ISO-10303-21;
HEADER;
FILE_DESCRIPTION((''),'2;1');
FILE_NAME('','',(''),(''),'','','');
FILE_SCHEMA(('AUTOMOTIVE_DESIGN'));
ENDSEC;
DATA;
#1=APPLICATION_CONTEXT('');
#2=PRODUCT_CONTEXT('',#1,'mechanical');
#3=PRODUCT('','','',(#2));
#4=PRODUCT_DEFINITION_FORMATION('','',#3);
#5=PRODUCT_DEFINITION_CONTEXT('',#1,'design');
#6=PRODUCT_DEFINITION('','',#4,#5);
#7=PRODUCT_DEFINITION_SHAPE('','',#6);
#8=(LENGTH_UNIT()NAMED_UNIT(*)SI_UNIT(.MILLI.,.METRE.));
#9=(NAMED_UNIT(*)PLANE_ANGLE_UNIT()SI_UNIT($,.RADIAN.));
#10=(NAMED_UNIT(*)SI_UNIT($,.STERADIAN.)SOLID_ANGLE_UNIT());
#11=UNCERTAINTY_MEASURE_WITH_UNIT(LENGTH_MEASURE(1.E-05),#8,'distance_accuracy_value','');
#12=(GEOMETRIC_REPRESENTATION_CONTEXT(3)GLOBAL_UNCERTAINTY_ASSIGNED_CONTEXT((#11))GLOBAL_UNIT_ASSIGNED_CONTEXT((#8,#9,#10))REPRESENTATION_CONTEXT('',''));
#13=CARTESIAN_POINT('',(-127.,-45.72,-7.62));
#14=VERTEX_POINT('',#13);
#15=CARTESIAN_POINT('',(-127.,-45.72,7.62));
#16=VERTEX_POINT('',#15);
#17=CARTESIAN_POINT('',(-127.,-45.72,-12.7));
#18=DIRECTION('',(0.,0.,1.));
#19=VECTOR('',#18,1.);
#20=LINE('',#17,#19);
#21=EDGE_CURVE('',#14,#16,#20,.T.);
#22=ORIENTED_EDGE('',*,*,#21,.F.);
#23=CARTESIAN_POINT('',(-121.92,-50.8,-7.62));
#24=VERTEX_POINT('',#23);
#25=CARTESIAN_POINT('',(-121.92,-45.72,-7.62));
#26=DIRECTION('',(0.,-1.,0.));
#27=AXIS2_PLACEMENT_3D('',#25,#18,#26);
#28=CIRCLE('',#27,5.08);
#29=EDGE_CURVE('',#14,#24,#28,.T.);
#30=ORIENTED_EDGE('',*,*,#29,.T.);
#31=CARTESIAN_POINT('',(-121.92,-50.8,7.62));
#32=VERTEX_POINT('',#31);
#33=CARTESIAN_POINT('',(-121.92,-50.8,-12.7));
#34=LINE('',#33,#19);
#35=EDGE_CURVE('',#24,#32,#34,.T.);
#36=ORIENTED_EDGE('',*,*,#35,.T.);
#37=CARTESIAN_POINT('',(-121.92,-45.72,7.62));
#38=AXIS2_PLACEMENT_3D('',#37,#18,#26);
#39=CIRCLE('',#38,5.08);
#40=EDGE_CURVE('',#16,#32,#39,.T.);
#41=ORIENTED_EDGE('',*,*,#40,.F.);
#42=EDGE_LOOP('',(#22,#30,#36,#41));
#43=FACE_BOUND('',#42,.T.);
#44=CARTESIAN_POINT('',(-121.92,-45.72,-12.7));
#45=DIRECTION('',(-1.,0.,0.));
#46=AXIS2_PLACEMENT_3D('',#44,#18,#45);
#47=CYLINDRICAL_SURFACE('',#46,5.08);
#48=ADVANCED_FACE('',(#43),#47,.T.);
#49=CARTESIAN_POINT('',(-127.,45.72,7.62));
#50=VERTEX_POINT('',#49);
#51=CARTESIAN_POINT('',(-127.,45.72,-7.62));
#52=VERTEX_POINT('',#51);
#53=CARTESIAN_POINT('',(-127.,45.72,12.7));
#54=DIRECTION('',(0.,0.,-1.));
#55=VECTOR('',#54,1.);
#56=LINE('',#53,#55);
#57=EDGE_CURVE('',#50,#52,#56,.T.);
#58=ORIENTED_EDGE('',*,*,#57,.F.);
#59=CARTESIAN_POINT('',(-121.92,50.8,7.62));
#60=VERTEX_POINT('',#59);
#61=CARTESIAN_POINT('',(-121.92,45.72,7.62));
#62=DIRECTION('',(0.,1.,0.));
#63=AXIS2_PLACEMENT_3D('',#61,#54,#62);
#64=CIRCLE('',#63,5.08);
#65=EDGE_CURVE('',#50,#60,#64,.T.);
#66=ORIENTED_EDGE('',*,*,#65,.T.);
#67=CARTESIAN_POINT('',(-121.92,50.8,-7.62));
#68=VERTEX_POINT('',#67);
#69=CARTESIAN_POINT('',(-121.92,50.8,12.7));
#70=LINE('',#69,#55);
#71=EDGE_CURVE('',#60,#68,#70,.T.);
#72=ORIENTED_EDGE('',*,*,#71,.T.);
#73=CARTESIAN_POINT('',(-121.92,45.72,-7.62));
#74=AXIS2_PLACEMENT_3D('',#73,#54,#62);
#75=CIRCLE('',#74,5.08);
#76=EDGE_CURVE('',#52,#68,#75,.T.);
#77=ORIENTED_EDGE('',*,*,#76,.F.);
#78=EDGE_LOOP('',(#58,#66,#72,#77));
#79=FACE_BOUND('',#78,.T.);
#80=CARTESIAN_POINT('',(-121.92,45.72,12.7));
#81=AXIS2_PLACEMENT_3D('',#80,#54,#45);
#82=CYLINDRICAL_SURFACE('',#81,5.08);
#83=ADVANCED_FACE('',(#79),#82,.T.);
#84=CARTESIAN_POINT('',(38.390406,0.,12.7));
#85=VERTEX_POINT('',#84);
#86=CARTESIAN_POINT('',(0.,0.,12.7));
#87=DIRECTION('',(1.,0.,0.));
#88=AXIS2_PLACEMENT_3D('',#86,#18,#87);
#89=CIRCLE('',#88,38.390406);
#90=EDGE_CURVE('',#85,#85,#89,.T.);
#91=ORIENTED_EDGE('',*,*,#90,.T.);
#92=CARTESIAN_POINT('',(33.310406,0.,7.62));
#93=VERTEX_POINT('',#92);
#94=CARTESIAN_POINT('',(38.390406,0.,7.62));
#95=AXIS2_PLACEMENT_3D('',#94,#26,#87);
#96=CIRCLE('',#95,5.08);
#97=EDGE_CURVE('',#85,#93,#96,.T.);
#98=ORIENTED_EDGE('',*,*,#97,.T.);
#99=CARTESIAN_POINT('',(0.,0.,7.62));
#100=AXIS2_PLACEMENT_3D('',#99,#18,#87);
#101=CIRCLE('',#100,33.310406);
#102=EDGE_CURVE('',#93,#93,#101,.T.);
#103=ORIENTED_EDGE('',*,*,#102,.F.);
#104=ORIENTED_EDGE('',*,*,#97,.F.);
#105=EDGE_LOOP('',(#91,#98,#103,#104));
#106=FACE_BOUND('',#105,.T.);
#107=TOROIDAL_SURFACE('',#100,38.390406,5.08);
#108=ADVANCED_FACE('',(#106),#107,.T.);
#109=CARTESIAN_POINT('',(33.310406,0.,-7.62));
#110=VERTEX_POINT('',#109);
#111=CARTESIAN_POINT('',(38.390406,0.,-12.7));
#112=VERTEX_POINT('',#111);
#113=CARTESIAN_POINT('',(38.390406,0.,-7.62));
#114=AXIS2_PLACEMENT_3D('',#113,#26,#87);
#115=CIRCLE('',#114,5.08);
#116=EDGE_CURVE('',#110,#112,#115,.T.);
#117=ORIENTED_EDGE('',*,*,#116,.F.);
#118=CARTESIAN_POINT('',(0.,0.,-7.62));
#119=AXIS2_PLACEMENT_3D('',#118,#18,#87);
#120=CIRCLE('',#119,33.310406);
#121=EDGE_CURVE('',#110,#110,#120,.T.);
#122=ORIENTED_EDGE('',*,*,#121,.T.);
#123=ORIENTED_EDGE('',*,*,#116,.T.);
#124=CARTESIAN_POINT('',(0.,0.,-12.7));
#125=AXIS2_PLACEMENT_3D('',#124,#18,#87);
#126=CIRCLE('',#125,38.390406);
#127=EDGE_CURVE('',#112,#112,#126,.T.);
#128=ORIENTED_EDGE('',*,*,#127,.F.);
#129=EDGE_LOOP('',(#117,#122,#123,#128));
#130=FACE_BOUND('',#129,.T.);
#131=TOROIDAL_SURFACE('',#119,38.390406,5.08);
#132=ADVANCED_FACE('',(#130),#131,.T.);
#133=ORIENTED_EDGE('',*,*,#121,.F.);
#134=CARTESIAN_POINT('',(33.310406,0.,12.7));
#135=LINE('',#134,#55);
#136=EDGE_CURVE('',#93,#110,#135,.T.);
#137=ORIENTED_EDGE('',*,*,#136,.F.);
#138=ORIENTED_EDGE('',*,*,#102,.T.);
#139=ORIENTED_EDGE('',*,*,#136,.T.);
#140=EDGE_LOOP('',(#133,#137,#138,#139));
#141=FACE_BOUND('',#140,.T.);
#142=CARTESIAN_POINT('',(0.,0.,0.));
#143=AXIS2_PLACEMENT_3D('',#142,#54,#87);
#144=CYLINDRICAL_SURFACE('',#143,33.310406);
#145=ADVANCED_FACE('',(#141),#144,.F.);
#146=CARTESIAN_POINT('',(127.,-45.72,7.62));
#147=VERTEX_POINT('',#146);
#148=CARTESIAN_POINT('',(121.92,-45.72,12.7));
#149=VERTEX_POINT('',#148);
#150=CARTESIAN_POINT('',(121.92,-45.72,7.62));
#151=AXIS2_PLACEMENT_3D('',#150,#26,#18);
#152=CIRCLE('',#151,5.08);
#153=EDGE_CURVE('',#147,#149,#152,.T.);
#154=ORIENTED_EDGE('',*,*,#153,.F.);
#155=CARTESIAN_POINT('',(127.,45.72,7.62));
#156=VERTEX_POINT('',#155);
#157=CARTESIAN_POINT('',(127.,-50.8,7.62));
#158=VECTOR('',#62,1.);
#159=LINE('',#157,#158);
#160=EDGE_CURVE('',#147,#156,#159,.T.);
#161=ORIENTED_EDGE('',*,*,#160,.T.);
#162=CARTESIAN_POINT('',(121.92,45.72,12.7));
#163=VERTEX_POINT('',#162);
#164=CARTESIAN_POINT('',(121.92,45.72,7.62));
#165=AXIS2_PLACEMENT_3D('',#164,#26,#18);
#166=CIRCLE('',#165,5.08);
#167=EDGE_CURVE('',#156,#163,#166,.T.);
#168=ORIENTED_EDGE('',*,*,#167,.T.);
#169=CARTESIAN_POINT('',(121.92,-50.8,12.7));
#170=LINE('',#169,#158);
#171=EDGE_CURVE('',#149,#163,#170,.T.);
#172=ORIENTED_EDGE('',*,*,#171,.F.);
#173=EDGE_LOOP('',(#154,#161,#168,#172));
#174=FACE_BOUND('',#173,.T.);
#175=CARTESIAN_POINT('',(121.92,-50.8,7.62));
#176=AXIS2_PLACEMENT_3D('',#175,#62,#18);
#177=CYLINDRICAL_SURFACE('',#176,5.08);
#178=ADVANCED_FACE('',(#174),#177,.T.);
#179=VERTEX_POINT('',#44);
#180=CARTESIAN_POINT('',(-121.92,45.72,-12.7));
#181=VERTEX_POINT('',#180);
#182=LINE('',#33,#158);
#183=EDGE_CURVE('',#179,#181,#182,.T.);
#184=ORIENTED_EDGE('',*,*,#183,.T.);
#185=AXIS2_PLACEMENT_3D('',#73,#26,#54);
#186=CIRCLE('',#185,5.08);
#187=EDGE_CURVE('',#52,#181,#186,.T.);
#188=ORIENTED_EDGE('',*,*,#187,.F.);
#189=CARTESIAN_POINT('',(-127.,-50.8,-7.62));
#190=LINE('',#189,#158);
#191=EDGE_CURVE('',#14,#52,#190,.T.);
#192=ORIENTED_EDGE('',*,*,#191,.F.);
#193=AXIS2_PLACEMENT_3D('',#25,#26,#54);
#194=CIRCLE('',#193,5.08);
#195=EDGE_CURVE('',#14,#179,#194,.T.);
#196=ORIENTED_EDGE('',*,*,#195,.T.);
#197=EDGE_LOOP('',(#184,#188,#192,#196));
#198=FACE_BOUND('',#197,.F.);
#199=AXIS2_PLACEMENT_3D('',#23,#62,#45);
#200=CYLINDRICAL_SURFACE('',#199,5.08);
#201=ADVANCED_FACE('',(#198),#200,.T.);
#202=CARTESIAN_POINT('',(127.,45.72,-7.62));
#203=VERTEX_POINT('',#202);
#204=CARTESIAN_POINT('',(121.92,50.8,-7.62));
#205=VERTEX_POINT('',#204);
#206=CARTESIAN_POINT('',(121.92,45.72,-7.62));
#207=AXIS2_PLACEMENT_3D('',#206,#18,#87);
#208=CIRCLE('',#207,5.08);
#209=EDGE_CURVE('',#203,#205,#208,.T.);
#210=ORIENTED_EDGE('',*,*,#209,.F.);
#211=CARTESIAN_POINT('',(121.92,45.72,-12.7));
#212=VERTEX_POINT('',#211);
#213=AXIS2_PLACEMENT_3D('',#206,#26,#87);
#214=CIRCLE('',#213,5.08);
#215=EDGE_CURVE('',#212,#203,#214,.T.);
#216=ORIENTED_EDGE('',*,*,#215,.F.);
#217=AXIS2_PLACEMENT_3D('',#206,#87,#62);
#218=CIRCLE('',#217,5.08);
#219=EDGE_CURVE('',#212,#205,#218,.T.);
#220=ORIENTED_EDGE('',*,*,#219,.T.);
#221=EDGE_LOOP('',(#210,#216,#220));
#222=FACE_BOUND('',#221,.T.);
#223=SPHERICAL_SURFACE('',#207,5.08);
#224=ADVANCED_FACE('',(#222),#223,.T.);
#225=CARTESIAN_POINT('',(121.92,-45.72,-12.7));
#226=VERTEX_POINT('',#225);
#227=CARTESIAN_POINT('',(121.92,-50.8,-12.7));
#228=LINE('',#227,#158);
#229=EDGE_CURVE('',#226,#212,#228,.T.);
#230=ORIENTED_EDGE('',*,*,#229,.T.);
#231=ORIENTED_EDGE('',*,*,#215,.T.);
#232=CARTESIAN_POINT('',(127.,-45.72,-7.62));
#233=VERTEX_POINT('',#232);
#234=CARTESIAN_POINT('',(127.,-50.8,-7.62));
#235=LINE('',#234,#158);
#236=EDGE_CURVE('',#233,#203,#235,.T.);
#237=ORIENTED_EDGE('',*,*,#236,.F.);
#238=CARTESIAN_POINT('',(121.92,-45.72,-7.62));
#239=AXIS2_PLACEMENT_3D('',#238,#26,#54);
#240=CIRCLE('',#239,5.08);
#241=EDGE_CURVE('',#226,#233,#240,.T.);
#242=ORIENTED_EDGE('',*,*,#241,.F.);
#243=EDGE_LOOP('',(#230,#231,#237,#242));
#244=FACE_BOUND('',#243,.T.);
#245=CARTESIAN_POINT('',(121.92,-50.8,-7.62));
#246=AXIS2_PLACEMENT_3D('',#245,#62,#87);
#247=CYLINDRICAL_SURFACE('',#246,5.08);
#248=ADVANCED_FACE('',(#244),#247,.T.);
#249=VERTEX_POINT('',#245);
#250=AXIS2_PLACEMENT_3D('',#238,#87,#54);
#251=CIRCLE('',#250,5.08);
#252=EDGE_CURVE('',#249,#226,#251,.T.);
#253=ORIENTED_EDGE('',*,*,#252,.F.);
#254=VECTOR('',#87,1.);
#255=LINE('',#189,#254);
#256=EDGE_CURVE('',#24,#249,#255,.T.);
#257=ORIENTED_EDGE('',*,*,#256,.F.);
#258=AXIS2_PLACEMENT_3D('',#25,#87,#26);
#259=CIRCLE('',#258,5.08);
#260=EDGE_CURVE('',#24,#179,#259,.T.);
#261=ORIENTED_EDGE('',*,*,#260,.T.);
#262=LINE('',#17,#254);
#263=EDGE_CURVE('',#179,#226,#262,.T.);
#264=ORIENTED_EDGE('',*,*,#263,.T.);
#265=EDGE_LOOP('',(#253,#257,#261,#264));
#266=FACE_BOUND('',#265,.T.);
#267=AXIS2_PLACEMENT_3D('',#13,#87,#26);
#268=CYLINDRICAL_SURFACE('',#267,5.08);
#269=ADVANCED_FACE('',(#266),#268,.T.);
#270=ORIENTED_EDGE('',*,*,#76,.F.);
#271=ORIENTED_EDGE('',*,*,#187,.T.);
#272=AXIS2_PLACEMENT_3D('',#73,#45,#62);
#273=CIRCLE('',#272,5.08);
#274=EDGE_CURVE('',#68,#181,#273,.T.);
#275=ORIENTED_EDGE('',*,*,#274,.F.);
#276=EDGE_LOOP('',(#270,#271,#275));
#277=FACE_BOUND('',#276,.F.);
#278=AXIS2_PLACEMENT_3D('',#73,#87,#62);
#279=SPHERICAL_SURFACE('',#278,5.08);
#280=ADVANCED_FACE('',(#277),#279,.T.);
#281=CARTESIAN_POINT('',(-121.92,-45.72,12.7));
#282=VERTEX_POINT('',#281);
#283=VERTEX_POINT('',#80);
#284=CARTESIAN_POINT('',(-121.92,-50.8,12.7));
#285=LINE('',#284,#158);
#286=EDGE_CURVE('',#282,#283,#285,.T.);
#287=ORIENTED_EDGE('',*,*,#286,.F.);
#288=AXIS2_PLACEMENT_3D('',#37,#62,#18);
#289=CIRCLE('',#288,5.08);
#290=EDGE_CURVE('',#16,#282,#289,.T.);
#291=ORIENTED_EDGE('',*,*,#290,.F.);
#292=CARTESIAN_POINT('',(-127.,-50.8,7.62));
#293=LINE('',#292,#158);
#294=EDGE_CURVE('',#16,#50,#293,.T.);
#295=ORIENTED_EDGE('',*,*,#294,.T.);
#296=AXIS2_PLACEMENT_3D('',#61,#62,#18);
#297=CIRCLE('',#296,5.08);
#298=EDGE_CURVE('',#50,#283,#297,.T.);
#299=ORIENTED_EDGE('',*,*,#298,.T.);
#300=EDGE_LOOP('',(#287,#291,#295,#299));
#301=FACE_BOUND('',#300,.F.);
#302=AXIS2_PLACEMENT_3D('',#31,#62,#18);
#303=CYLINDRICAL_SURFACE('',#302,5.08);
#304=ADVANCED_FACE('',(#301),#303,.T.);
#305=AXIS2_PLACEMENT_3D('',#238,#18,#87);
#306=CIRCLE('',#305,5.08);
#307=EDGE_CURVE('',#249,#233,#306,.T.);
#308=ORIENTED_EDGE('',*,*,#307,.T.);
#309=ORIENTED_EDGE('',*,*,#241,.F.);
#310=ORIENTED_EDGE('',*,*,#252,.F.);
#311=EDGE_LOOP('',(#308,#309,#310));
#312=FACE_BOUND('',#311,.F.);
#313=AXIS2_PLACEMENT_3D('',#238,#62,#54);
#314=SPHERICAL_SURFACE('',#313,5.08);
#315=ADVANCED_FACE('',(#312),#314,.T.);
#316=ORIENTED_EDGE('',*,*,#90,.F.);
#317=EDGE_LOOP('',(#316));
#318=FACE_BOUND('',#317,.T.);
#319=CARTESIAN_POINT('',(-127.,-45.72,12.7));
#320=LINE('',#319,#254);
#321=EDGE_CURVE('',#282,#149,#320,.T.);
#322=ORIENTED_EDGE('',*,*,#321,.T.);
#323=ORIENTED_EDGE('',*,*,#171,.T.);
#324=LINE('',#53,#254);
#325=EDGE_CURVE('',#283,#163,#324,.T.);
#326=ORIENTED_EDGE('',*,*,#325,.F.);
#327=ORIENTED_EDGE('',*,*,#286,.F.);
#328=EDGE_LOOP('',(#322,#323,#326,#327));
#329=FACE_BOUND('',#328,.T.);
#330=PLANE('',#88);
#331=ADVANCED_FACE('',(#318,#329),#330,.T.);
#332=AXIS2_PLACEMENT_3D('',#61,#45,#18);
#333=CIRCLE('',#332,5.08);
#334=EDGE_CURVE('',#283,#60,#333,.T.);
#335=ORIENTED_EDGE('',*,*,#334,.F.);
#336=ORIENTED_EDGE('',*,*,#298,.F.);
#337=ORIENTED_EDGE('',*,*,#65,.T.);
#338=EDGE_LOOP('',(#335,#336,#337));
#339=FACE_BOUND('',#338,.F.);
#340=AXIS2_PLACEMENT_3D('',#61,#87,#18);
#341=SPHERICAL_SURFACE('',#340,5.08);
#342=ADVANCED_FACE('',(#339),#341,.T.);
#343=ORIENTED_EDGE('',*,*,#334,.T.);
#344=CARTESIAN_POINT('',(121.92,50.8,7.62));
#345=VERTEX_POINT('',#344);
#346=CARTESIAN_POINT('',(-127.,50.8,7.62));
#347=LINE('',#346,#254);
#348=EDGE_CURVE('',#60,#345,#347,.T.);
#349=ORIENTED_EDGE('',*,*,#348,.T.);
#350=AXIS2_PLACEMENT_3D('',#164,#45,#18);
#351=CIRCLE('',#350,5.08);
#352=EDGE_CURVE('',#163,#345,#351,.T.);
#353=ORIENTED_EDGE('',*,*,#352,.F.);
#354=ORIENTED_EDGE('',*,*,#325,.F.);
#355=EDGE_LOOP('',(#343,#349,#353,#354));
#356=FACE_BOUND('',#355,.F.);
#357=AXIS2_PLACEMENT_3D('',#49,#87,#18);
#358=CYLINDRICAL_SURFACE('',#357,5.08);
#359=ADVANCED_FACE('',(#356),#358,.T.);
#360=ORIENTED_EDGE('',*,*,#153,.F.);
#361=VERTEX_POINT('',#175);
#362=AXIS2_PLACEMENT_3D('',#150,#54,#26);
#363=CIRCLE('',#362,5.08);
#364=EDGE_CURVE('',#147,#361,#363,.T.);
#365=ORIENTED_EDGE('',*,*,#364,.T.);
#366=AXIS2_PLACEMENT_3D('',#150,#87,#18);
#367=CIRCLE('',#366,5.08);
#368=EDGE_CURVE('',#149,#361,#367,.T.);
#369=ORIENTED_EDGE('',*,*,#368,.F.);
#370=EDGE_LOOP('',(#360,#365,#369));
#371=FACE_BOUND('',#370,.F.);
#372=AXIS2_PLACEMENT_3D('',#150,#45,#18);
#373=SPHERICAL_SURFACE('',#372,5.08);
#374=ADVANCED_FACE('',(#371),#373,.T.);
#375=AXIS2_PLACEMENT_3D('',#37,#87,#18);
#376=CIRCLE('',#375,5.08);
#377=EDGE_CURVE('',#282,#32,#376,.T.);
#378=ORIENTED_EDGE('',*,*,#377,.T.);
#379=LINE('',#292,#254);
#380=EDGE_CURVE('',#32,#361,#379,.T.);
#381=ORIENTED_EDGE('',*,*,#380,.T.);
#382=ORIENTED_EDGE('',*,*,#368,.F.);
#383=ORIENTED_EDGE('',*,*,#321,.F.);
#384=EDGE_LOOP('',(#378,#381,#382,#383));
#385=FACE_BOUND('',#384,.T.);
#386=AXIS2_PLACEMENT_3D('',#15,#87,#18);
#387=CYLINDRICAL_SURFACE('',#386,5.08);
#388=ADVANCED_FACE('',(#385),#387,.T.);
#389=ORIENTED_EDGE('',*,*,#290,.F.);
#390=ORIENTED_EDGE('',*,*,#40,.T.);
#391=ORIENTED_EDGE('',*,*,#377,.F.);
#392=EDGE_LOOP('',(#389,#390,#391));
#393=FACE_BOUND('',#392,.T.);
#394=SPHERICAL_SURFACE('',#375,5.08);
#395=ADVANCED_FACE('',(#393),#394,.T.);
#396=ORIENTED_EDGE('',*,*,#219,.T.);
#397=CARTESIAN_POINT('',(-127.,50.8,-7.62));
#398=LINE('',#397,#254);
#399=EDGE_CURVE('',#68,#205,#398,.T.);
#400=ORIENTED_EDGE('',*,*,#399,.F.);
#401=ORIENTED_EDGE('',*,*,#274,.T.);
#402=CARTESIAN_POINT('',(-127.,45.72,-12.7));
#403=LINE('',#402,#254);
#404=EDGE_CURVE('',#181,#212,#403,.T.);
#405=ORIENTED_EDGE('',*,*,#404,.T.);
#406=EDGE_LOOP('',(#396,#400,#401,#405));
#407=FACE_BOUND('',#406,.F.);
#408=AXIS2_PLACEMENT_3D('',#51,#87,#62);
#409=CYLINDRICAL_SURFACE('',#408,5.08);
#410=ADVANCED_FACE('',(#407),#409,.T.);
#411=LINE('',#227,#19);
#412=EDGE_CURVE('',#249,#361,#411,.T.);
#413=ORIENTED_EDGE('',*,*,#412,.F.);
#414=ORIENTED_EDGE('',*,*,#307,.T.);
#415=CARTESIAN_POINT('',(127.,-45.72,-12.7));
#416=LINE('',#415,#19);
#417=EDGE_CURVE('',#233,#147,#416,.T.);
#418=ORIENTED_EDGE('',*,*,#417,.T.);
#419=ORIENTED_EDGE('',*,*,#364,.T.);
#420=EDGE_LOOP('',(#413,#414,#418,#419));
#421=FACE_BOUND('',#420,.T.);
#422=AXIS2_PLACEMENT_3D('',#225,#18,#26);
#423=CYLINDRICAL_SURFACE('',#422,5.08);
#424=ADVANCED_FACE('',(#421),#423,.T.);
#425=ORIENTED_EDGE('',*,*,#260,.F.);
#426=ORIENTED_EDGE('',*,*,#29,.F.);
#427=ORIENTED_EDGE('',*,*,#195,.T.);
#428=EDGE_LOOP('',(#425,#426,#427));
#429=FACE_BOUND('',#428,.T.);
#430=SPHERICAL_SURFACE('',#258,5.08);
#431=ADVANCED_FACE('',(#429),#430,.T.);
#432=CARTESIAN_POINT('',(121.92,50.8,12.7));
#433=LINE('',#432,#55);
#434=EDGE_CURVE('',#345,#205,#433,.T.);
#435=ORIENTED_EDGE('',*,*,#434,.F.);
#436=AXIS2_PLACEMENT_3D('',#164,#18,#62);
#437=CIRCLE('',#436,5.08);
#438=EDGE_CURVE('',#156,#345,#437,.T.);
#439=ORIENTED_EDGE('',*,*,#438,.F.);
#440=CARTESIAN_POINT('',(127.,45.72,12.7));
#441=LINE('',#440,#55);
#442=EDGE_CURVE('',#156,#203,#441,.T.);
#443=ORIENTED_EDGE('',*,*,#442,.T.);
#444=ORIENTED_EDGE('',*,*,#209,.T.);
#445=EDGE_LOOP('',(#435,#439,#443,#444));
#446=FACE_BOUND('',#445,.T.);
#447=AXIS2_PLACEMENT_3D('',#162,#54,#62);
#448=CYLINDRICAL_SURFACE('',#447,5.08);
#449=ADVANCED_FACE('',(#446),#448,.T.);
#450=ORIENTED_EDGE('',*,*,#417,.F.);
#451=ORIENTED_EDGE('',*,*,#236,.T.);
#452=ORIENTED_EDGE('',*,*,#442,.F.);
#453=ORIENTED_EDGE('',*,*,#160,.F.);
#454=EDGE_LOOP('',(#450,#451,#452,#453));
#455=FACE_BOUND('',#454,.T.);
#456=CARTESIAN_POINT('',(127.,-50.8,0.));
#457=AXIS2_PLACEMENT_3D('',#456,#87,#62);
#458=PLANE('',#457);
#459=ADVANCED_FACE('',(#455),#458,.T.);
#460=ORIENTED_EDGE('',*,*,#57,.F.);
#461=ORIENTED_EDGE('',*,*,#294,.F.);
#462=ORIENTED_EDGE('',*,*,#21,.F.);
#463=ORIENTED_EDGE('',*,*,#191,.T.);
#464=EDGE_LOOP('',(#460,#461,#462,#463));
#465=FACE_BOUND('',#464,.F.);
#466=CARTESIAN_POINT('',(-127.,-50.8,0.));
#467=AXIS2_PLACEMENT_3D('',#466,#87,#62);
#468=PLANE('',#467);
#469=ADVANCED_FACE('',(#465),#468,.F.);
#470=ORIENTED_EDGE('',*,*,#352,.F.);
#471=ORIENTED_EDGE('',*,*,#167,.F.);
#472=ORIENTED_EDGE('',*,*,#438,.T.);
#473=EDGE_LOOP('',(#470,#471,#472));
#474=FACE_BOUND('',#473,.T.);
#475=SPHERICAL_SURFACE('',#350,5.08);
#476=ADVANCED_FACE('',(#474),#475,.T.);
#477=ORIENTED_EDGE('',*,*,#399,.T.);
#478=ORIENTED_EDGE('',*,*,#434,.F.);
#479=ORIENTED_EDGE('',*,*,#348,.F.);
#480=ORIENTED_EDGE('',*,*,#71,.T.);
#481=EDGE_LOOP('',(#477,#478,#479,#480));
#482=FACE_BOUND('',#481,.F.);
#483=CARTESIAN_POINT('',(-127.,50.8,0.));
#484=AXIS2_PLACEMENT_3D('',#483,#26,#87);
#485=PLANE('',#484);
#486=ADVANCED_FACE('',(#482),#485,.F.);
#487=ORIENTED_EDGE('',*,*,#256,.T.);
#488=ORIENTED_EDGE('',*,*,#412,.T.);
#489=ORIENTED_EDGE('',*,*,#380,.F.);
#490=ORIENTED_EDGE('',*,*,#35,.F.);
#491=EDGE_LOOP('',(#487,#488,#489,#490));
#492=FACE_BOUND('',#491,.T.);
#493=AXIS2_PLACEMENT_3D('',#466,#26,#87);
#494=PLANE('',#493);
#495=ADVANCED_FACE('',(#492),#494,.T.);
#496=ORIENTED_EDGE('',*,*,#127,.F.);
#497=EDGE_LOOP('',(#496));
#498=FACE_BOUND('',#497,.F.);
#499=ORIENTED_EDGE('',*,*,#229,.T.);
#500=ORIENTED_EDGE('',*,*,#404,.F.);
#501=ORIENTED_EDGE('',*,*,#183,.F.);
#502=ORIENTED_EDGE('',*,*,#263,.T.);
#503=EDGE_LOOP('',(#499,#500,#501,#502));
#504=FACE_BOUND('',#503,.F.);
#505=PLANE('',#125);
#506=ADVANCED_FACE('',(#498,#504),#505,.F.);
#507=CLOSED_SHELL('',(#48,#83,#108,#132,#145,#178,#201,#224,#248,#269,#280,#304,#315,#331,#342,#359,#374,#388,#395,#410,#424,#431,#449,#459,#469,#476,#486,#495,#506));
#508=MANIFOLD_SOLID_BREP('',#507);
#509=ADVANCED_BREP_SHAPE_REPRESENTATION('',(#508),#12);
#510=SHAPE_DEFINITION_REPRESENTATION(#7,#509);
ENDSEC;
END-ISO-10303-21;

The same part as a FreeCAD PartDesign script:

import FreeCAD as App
import Part
import Sketcher
from FreeCAD import Vector
Q = App.Units.Quantity


def edges_at(feature, points):
    """Names of the edges that pass closest to the given points."""
    edges = feature.Shape.Edges
    near = lambda p: min(range(len(edges)), key=lambda i: edges[i].distToShape(Part.Vertex(*p))[0])
    return sorted({f"Edge{near(p) + 1}" for p in points})


def add_polygon(sketch, points):
    """Adds a closed chain of lines whose ends are joined by coincident constraints."""
    first, n = sketch.GeometryCount, len(points)
    for a, b in zip(points, points[1:] + points[:1]):
        sketch.addGeometry(Part.LineSegment(App.Vector(*a, 0), App.Vector(*b, 0)), False)
    for i in range(n):
        sketch.addConstraint(Sketcher.Constraint("Coincident", first + i, 2, first + (i + 1) % n, 1))

doc = App.newDocument("Part")
body = doc.addObject("PartDesign::Body", "Body")

sketch1 = body.newObject("Sketcher::SketchObject", "Sketch")
sketch1.AttachmentSupport = (doc.getObject("XY_Plane"), [""])
sketch1.MapMode = "FlatFace"
add_polygon(sketch1, [(-127, 51), (-127, -51), (127, -51), (127, 51)])
sketch1.addGeometry(Part.Circle(Vector(0, 0, 0), Vector(0, 0, 1), 33), False)
sketch1.addConstraint([
    Sketcher.Constraint("Vertical", 0),
    Sketcher.Constraint("Horizontal", 1),
    Sketcher.Constraint("Vertical", 2),
    Sketcher.Constraint("Horizontal", 3),
    Sketcher.Constraint("Coincident", 4, 3, -1, 1),
    Sketcher.Constraint("Symmetric", 0, 2, 2, 2, -1, 1),
    Sketcher.Constraint("DistanceX", 1, 1, 1, 2, Q("10 in")),
    Sketcher.Constraint("DistanceY", 0, 2, 0, 1, Q("4 in")),
    Sketcher.Constraint("Diameter", 4, 66.620812),
])
pad1 = body.newObject("PartDesign::Pad", "Pad")
pad1.Profile = sketch1
pad1.Length = Q("1 in")
pad1.Midplane = True
doc.recompute()

fillet = body.newObject("PartDesign::Fillet", "Fillet")
fillet.Base = (pad1, edges_at(pad1, [(-33.31, 0, 12.7)]))
fillet.Radius = Q("0.2 in")
doc.recompute()

fillet2 = body.newObject("PartDesign::Fillet", "Fillet001")
fillet2.Base = (fillet, ["Edge1"])
fillet2.UseAllEdges = True
fillet2.Radius = Q("0.2 in")

doc.recompute()
